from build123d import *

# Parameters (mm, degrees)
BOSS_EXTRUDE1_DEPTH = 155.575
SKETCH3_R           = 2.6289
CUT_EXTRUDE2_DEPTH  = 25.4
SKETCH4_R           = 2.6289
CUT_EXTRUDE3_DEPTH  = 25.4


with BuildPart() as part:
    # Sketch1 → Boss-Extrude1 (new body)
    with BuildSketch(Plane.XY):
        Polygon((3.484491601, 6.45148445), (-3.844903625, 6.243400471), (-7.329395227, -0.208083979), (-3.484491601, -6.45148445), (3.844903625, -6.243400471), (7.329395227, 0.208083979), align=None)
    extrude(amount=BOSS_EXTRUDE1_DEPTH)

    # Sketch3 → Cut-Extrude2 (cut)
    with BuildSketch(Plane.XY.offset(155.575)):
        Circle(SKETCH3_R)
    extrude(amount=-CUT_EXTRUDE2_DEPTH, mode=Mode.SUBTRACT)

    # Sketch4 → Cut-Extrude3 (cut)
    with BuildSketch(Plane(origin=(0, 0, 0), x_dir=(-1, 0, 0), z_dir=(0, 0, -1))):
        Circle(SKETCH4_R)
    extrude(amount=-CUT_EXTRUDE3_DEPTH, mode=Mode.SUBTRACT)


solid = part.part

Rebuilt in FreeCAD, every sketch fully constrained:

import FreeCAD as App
import Part
import Sketcher

V = App.Vector
Q = App.Units.Quantity

doc = App.newDocument("Part")
params = doc.addObject("Spreadsheet::Sheet", "Params")
for row, (alias, value) in enumerate([
    ("pad1_length", "6.125 in"),
    ("sketch2_diameter", "0.207 in"),
    ("pocket1_length", "1 in"),
    ("sketch3_diameter", "0.207 in"),
    ("pocket2_length", "1 in"),
], start=1):
    params.set(f"A{row}", alias)
    params.set(f"B{row}", "=" + value)
    params.setAlias(f"B{row}", alias)

body = doc.addObject("PartDesign::Body", "Body")

# Sketch on XY plane
sketch1 = body.newObject("Sketcher::SketchObject", "Sketch")
sketch1.AttachmentSupport = (doc.getObject("XY_Plane"), [""])
sketch1.MapMode = "FlatFace"
sketch1.addGeometry([
    Part.LineSegment(V(3, 6, 0), V(-4, 6, 0)),  # 0
    Part.LineSegment(V(-4, 6, 0), V(-7, 0, 0)),  # 1
    Part.LineSegment(V(-7, 0, 0), V(-3, -6, 0)),  # 2
    Part.LineSegment(V(-3, -6, 0), V(4, -6, 0)),  # 3
    Part.LineSegment(V(4, -6, 0), V(7, 0, 0)),  # 4
    Part.LineSegment(V(7, 0, 0), V(3, 6, 0)),  # 5
], False)
sketch1.addConstraint([
    Sketcher.Constraint("Coincident", 0, 2, 1, 1),
    Sketcher.Constraint("Coincident", 1, 2, 2, 1),
    Sketcher.Constraint("Coincident", 2, 2, 3, 1),
    Sketcher.Constraint("Coincident", 3, 2, 4, 1),
    Sketcher.Constraint("Coincident", 4, 2, 5, 1),
    Sketcher.Constraint("Coincident", 5, 2, 0, 1),
    Sketcher.Constraint("Symmetric", 0, 2, 3, 2, -1, 1),
    Sketcher.Constraint("Symmetric", 1, 2, 4, 2, -1, 1),
    Sketcher.Constraint("Symmetric", 2, 2, 5, 2, -1, 1),
    Sketcher.Constraint("Equal", 0, 1),
    Sketcher.Constraint("Equal", 1, 2),
    Sketcher.Constraint("DistanceY", -1, 1, 0, 2, Q("6.2434 mm")),
    Sketcher.Constraint("DistanceY", 2, 2, 1, 2, Q("6.2434 mm")),
    Sketcher.Constraint("DistanceX", 1, 2, 3, 2, Q("11.174299 mm")),
    Sketcher.Constraint("DistanceX", 2, 2, -1, 1, Q("3.484492 mm")),
])
pad1 = body.newObject("PartDesign::Pad", "Pad")
pad1.Profile = sketch1
pad1.setExpression("Length", "Params.pad1_length")

# Sketch on XY plane
sketch2 = body.newObject("Sketcher::SketchObject", "Sketch001")
sketch2.AttachmentSupport = (doc.getObject("XY_Plane"), [""])
sketch2.MapMode = "FlatFace"
sketch2.AttachmentOffset = App.Placement(V(0, 0, 6.125 * 25.4), App.Rotation())
sketch2.addGeometry(Part.Circle(V(0, 0, 0), V(0, 0, 1), 2.6), False)
sketch2.addConstraint([
    Sketcher.Constraint("Coincident", 0, 3, -1, 1),
    Sketcher.Constraint("Diameter", 0, Q("0.207 in")),
])
sketch2.setExpression("Constraints[1]", "Params.sketch2_diameter")
pocket1 = body.newObject("PartDesign::Pocket", "Pocket")
pocket1.Profile = sketch2
pocket1.setExpression("Length", "Params.pocket1_length")

# Sketch on XY plane
sketch3 = body.newObject("Sketcher::SketchObject", "Sketch002")
sketch3.AttachmentSupport = (doc.getObject("XY_Plane"), [""])
sketch3.MapMode = "FlatFace"
sketch3.addGeometry(Part.Circle(V(0, 0, 0), V(0, 0, 1), 2.6), False)
sketch3.addConstraint([
    Sketcher.Constraint("Coincident", 0, 3, -1, 1),
    Sketcher.Constraint("Diameter", 0, Q("0.207 in")),
])
sketch3.setExpression("Constraints[1]", "Params.sketch3_diameter")
pocket2 = body.newObject("PartDesign::Pocket", "Pocket001")
pocket2.Profile = sketch3
pocket2.setExpression("Length", "Params.pocket2_length")
pocket2.Reversed = True

doc.recompute()
